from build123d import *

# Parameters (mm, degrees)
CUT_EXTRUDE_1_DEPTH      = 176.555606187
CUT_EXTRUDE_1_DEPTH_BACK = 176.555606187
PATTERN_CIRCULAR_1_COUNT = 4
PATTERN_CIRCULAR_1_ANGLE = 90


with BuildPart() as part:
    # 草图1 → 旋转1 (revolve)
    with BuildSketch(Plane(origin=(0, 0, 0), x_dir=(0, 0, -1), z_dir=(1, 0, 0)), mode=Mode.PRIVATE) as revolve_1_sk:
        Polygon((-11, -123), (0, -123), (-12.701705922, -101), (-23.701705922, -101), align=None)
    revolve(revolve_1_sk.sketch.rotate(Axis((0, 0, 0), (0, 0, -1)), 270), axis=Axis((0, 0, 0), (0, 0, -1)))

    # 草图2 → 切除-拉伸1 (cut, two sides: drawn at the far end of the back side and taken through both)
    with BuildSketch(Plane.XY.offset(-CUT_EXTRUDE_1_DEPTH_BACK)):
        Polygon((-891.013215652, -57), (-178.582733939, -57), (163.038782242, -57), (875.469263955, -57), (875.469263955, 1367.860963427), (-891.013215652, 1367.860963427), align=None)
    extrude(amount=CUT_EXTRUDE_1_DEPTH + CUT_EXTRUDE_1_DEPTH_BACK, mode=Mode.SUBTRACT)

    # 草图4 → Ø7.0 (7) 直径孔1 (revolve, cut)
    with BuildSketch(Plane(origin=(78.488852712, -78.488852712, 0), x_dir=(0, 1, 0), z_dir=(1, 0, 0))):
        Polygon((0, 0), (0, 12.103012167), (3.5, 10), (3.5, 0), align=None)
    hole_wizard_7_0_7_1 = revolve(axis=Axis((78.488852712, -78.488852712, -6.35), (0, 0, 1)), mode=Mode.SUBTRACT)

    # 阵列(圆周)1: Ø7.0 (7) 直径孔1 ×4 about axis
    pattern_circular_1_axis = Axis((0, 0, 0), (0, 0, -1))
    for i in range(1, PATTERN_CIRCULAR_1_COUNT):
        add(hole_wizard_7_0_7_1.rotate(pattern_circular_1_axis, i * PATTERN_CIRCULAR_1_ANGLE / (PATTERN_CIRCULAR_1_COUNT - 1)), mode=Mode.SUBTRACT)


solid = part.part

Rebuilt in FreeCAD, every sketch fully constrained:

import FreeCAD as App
import Part
import Sketcher
Q = App.Units.Quantity

doc = App.newDocument("Part")
body = doc.addObject("PartDesign::Body", "Body")

# Sketch on YZ plane
sketch1 = body.newObject("Sketcher::SketchObject", "Sketch")
sketch1.AttachmentSupport = (doc.getObject("YZ_Plane"), [""])
sketch1.MapMode = "FlatFace"
sketch1.addGeometry([
    Part.LineSegment(App.Vector(-123, 11, 0), App.Vector(-123, 0, 0)),
    Part.LineSegment(App.Vector(-123, 0, 0), App.Vector(-101, 13, 0)),
    Part.LineSegment(App.Vector(-101, 13, 0), App.Vector(-101, 24, 0)),
    Part.LineSegment(App.Vector(-101, 24, 0), App.Vector(-123, 11, 0)),
], False)
sketch1.addConstraint([
    Sketcher.Constraint("Coincident", 0, 2, 1, 1),
    Sketcher.Constraint("Coincident", 1, 2, 2, 1),
    Sketcher.Constraint("Coincident", 2, 2, 3, 1),
    Sketcher.Constraint("Coincident", 3, 2, 0, 1),
    Sketcher.Constraint("Vertical", 0),
    Sketcher.Constraint("Vertical", 2),
    Sketcher.Constraint("PointOnObject", 0, 2, -1),
    Sketcher.Constraint("Parallel", 1, 3),
    Sketcher.Constraint("DistanceY", 0, 2, 0, 1, Q("11 mm")),
    Sketcher.Constraint("Angle", 1, Q("30 deg")),
    Sketcher.Constraint("DistanceX", 0, 2, -1, 1, Q("123 mm")),
    Sketcher.Constraint("DistanceX", 1, 2, -1, 1, Q("101 mm")),
])
revolution = body.newObject("PartDesign::Revolution", "Revolution")
revolution.Profile = sketch1
revolution.ReferenceAxis = (sketch1, ["V_Axis"])
revolution.Angle = 360

# Sketch on XY plane
sketch2 = body.newObject("Sketcher::SketchObject", "Sketch001")
sketch2.AttachmentSupport = (doc.getObject("XY_Plane"), [""])
sketch2.MapMode = "FlatFace"
sketch2.addGeometry([
    Part.LineSegment(App.Vector(-891, -57, 0), App.Vector(875, -57, 0)),
    Part.LineSegment(App.Vector(875, -57, 0), App.Vector(875, 1368, 0)),
    Part.LineSegment(App.Vector(875, 1368, 0), App.Vector(-891, 1368, 0)),
    Part.LineSegment(App.Vector(-891, 1368, 0), App.Vector(-891, -57, 0)),
], False)
sketch2.addConstraint([
    Sketcher.Constraint("Coincident", 0, 2, 1, 1),
    Sketcher.Constraint("Coincident", 1, 2, 2, 1),
    Sketcher.Constraint("Coincident", 2, 2, 3, 1),
    Sketcher.Constraint("Coincident", 3, 2, 0, 1),
    Sketcher.Constraint("Horizontal", 0),
    Sketcher.Constraint("Vertical", 1),
    Sketcher.Constraint("Horizontal", 2),
    Sketcher.Constraint("Vertical", 3),
    Sketcher.Constraint("DistanceY", 0, 2, -1, 1, Q("57 mm")),
    Sketcher.Constraint("DistanceX", 0, 1, 0, 2, Q("1766.48248 mm")),
    Sketcher.Constraint("DistanceY", 1, 1, 1, 2, Q("1424.860963 mm")),
    Sketcher.Constraint("DistanceX", -1, 1, 0, 2, Q("875.469264 mm")),
])
pocket1 = body.newObject("PartDesign::Pocket", "Pocket")
pocket1.Profile = sketch2
pocket1.Type = "ThroughAll"
pocket1.Midplane = True

# Sketch on YZ plane
sketch3 = body.newObject("Sketcher::SketchObject", "Sketch002")
sketch3.AttachmentSupport = (doc.getObject("YZ_Plane"), [""])
sketch3.MapMode = "FlatFace"
sketch3.AttachmentOffset = App.Placement(App.Vector(0, 0, 78.488853), App.Rotation())
sketch3.addGeometry([
    Part.LineSegment(App.Vector(-78.5, 12.1, 0), App.Vector(-78.5, 0, 0)),
    Part.LineSegment(App.Vector(-78.5, 0, 0), App.Vector(-75, 0, 0)),
    Part.LineSegment(App.Vector(-75, 0, 0), App.Vector(-75, 10, 0)),
    Part.LineSegment(App.Vector(-75, 10, 0), App.Vector(-78.5, 12.1, 0)),
], False)
sketch3.addGeometry(Part.LineSegment(App.Vector(-78.5, 0, 0), App.Vector(-78.5, 12.1, 0)), True)  # axis
sketch3.addConstraint([
    Sketcher.Constraint("Coincident", 0, 2, 1, 1),
    Sketcher.Constraint("Coincident", 1, 2, 2, 1),
    Sketcher.Constraint("Coincident", 2, 2, 3, 1),
    Sketcher.Constraint("Coincident", 3, 2, 0, 1),
    Sketcher.Constraint("Vertical", 0),
    Sketcher.Constraint("Horizontal", 1),
    Sketcher.Constraint("Vertical", 2),
    Sketcher.Constraint("Vertical", 4),
    Sketcher.Constraint("Coincident", 4, 1, 0, 2),
    Sketcher.Constraint("PointOnObject", 0, 2, -1),
    Sketcher.Constraint("Equal", 0, 4),
    Sketcher.Constraint("DistanceY", 2, 1, 2, 2, Q("10 mm")),
    Sketcher.Constraint("Angle", 3, Q("149 deg")),
    Sketcher.Constraint("DistanceX", 1, 1, 1, 2, Q("3.5 mm")),
    Sketcher.Constraint("DistanceX", 0, 2, -1, 1, Q("78.488853 mm")),
])
groove = body.newObject("PartDesign::Groove", "Groove")
groove.Profile = sketch3
groove.ReferenceAxis = (sketch3, ["Axis0"])
groove.Angle = 360
doc.recompute()

polarpattern = body.newObject("PartDesign::PolarPattern", "PolarPattern")
polarpattern.Originals = [groove]
polarpattern.Axis = (doc.getObject("Z_Axis"), [""])
polarpattern.Angle = 90
polarpattern.Occurrences = 4
polarpattern.Reversed = True
body.Tip = polarpattern

doc.recompute()
